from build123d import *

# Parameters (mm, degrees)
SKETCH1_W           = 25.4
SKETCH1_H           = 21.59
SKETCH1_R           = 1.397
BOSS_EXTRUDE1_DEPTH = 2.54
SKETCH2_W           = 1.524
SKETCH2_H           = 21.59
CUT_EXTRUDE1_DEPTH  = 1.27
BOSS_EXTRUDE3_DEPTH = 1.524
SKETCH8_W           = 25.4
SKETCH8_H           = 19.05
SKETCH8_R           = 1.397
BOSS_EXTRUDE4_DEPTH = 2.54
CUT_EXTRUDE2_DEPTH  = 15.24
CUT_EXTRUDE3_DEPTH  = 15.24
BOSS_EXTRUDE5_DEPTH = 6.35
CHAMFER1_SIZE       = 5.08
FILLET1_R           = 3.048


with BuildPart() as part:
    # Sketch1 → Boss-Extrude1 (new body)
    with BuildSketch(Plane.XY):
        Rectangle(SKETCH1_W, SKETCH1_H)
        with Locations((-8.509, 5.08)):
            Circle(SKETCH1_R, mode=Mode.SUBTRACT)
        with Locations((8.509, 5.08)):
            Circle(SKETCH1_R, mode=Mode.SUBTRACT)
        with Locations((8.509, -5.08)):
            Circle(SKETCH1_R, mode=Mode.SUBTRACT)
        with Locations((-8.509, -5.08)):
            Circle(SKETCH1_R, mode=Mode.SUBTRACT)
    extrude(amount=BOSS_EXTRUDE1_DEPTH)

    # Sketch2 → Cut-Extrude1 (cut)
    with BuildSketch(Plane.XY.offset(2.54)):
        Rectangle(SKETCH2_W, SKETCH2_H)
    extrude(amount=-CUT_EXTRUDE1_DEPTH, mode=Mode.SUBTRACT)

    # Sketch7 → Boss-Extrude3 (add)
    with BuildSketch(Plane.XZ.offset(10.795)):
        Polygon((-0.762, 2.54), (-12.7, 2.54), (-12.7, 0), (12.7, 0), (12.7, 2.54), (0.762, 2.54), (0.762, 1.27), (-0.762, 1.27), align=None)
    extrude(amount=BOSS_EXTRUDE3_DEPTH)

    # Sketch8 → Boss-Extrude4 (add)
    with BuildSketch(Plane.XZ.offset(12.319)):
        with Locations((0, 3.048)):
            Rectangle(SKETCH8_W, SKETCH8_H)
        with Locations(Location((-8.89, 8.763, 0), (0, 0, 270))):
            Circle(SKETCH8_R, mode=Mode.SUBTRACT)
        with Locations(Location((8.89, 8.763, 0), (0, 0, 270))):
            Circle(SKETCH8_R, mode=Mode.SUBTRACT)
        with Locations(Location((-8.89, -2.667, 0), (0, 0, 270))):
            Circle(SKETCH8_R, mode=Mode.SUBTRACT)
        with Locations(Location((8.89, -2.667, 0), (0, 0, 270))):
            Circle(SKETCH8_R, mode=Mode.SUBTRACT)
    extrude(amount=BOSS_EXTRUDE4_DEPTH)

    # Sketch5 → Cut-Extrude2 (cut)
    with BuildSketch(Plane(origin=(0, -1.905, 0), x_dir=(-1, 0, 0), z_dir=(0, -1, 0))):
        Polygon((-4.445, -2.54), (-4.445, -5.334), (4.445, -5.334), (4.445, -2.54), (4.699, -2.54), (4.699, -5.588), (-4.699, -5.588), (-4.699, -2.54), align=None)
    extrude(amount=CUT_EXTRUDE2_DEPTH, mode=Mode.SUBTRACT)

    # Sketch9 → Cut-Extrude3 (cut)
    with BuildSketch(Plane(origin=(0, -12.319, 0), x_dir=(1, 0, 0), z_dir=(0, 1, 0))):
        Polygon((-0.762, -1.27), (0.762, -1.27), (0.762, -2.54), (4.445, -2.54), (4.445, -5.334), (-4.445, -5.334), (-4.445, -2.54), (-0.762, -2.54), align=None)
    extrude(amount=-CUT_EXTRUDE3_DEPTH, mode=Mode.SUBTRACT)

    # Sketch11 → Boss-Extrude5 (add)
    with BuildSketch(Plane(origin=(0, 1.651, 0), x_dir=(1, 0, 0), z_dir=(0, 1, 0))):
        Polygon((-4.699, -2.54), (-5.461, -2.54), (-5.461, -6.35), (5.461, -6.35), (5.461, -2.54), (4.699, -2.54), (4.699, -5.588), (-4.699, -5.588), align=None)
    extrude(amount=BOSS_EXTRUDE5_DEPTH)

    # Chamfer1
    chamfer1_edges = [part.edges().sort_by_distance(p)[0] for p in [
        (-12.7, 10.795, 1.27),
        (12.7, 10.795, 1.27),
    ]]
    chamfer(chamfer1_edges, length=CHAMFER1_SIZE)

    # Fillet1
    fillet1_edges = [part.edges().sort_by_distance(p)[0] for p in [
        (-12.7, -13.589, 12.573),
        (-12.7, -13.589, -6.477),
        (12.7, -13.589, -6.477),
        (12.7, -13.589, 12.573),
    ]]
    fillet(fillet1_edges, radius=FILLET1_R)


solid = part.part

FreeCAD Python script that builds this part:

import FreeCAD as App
import Part
import Sketcher
from FreeCAD import Vector
Q = App.Units.Quantity


def edges_at(feature, points):
    """Names of the edges that pass closest to the given points."""
    edges = feature.Shape.Edges
    near = lambda p: min(range(len(edges)), key=lambda i: edges[i].distToShape(Part.Vertex(*p))[0])
    return sorted({f"Edge{near(p) + 1}" for p in points})

doc = App.newDocument("Part")
body = doc.addObject("PartDesign::Body", "Body")

# Sketch on XY plane
sketch1 = body.newObject("Sketcher::SketchObject", "Sketch")
sketch1.AttachmentSupport = (doc.getObject("XY_Plane"), [""])
sketch1.MapMode = "FlatFace"
sketch1.addGeometry([
    Part.LineSegment(Vector(-12.7, 10.8, 0), Vector(-12.7, -10.8, 0)),  # 0
    Part.LineSegment(Vector(-12.7, -10.8, 0), Vector(12.7, -10.8, 0)),  # 1
    Part.LineSegment(Vector(12.7, -10.8, 0), Vector(12.7, 10.8, 0)),  # 2
    Part.LineSegment(Vector(12.7, 10.8, 0), Vector(-12.7, 10.8, 0)),  # 3
    Part.Circle(Vector(-8.5, -5.1, 0), Vector(0, 0, 1), 1.4),  # 4
    Part.Circle(Vector(8.5, -5.1, 0), Vector(0, 0, 1), 1.4),  # 5
    Part.Circle(Vector(-8.5, 5.1, 0), Vector(0, 0, 1), 1.4),  # 6
    Part.Circle(Vector(8.5, 5.1, 0), Vector(0, 0, 1), 1.4),  # 7
], False)
sketch1.addConstraint([
    Sketcher.Constraint("Coincident", 0, 2, 1, 1),
    Sketcher.Constraint("Coincident", 1, 2, 2, 1),
    Sketcher.Constraint("Coincident", 2, 2, 3, 1),
    Sketcher.Constraint("Coincident", 3, 2, 0, 1),
    Sketcher.Constraint("Vertical", 0),
    Sketcher.Constraint("Horizontal", 1),
    Sketcher.Constraint("Vertical", 2),
    Sketcher.Constraint("Horizontal", 3),
    Sketcher.Constraint("Equal", 4, 5),
    Sketcher.Constraint("Equal", 5, 6),
    Sketcher.Constraint("Equal", 6, 7),
    Sketcher.Constraint("Symmetric", 5, 3, 6, 3, -1, 1),
    Sketcher.Constraint("Symmetric", 4, 3, 7, 3, -1, 1),
    Sketcher.Constraint("Symmetric", 0, 2, 2, 2, -1, 1),
    Sketcher.Constraint("Symmetric", 4, 3, 5, 3, -2),
    Sketcher.Constraint("Diameter", 4, Q("0.11 in")),
    Sketcher.Constraint("DistanceX", 1, 1, 1, 2, Q("1 in")),
    Sketcher.Constraint("DistanceY", 0, 2, 0, 1, Q("0.85 in")),
    Sketcher.Constraint("DistanceY", 4, 3, -1, 1, Q("0.2 in")),
    Sketcher.Constraint("DistanceX", 4, 3, 5, 3, Q("0.67 in")),
])
pad1 = body.newObject("PartDesign::Pad", "Pad")
pad1.Profile = sketch1
pad1.Length = Q("0.1 in")

# Sketch on XY plane
sketch2 = body.newObject("Sketcher::SketchObject", "Sketch001")
sketch2.AttachmentSupport = (doc.getObject("XY_Plane"), [""])
sketch2.MapMode = "FlatFace"
sketch2.AttachmentOffset = App.Placement(Vector(0, 0, 0.1 * 25.4), App.Rotation())
sketch2.addGeometry([
    Part.LineSegment(Vector(-0.8, 10.8, 0), Vector(-0.8, -10.8, 0)),
    Part.LineSegment(Vector(-0.8, -10.8, 0), Vector(0.8, -10.8, 0)),
    Part.LineSegment(Vector(0.8, -10.8, 0), Vector(0.8, 10.8, 0)),
    Part.LineSegment(Vector(0.8, 10.8, 0), Vector(-0.8, 10.8, 0)),
], False)
sketch2.addConstraint([
    Sketcher.Constraint("Coincident", 0, 2, 1, 1),
    Sketcher.Constraint("Coincident", 1, 2, 2, 1),
    Sketcher.Constraint("Coincident", 2, 2, 3, 1),
    Sketcher.Constraint("Coincident", 3, 2, 0, 1),
    Sketcher.Constraint("Vertical", 0),
    Sketcher.Constraint("Horizontal", 1),
    Sketcher.Constraint("Vertical", 2),
    Sketcher.Constraint("Horizontal", 3),
    Sketcher.Constraint("Symmetric", 0, 2, 2, 2, -1, 1),
    Sketcher.Constraint("DistanceX", 1, 1, 1, 2, Q("0.06 in")),
    Sketcher.Constraint("DistanceY", 0, 2, 0, 1, Q("0.85 in")),
])
pocket1 = body.newObject("PartDesign::Pocket", "Pocket")
pocket1.Profile = sketch2
pocket1.Length = Q("0.05 in")

# Sketch on XZ plane
sketch3 = body.newObject("Sketcher::SketchObject", "Sketch002")
sketch3.AttachmentSupport = (doc.getObject("XZ_Plane"), [""])
sketch3.MapMode = "FlatFace"
sketch3.AttachmentOffset = App.Placement(Vector(0, 0, 0.425 * 25.4), App.Rotation())
sketch3.addGeometry([
    Part.LineSegment(Vector(-0.8, 2.5, 0), Vector(-12.7, 2.5, 0)),  # 0
    Part.LineSegment(Vector(-12.7, 2.5, 0), Vector(-12.7, 0, 0)),  # 1
    Part.LineSegment(Vector(-12.7, 0, 0), Vector(12.7, 0, 0)),  # 2
    Part.LineSegment(Vector(12.7, 0, 0), Vector(12.7, 2.5, 0)),  # 3
    Part.LineSegment(Vector(12.7, 2.5, 0), Vector(0.8, 2.5, 0)),  # 4
    Part.LineSegment(Vector(0.8, 2.5, 0), Vector(0.8, 1.3, 0)),  # 5
    Part.LineSegment(Vector(0.8, 1.3, 0), Vector(-0.8, 1.3, 0)),  # 6
    Part.LineSegment(Vector(-0.8, 1.3, 0), Vector(-0.8, 2.5, 0)),  # 7
], False)
sketch3.addConstraint([
    Sketcher.Constraint("Coincident", 0, 2, 1, 1),
    Sketcher.Constraint("Coincident", 1, 2, 2, 1),
    Sketcher.Constraint("Coincident", 2, 2, 3, 1),
    Sketcher.Constraint("Coincident", 3, 2, 4, 1),
    Sketcher.Constraint("Coincident", 4, 2, 5, 1),
    Sketcher.Constraint("Coincident", 5, 2, 6, 1),
    Sketcher.Constraint("Coincident", 6, 2, 7, 1),
    Sketcher.Constraint("Coincident", 7, 2, 0, 1),
    Sketcher.Constraint("Horizontal", 0),
    Sketcher.Constraint("Vertical", 1),
    Sketcher.Constraint("Horizontal", 2),
    Sketcher.Constraint("Vertical", 3),
    Sketcher.Constraint("Horizontal", 4),
    Sketcher.Constraint("Vertical", 5),
    Sketcher.Constraint("Horizontal", 6),
    Sketcher.Constraint("Vertical", 7),
    Sketcher.Constraint("Symmetric", 1, 2, 2, 2, -1, 1),
    Sketcher.Constraint("Symmetric", 4, 2, 7, 2, -2),
    Sketcher.Constraint("DistanceX", 2, 1, 2, 2, Q("1 in")),
    Sketcher.Constraint("DistanceY", 1, 2, 1, 1, Q("0.1 in")),
    Sketcher.Constraint("DistanceX", 0, 2, 0, 1, Q("0.47 in")),
    Sketcher.Constraint("DistanceY", 5, 2, 5, 1, Q("0.05 in")),
])
pad2 = body.newObject("PartDesign::Pad", "Pad001")
pad2.Profile = sketch3
pad2.Length = Q("0.06 in")

# Sketch on XZ plane
sketch4 = body.newObject("Sketcher::SketchObject", "Sketch003")
sketch4.AttachmentSupport = (doc.getObject("XZ_Plane"), [""])
sketch4.MapMode = "FlatFace"
sketch4.AttachmentOffset = App.Placement(Vector(0, 0, 0.485 * 25.4), App.Rotation())
sketch4.addGeometry([
    Part.LineSegment(Vector(-12.7, 12.6, 0), Vector(-12.7, -6.5, 0)),  # 0
    Part.LineSegment(Vector(-12.7, -6.5, 0), Vector(12.7, -6.5, 0)),  # 1
    Part.LineSegment(Vector(12.7, -6.5, 0), Vector(12.7, 12.6, 0)),  # 2
    Part.LineSegment(Vector(12.7, 12.6, 0), Vector(-12.7, 12.6, 0)),  # 3
    Part.Circle(Vector(-8.9, -2.7, 0), Vector(0, 0, 1), 1.4),  # 4
    Part.Circle(Vector(8.9, -2.7, 0), Vector(0, 0, 1), 1.4),  # 5
    Part.Circle(Vector(-8.9, 8.8, 0), Vector(0, 0, 1), 1.4),  # 6
    Part.Circle(Vector(8.9, 8.8, 0), Vector(0, 0, 1), 1.4),  # 7
], False)
sketch4.addConstraint([
    Sketcher.Constraint("Coincident", 0, 2, 1, 1),
    Sketcher.Constraint("Coincident", 1, 2, 2, 1),
    Sketcher.Constraint("Coincident", 2, 2, 3, 1),
    Sketcher.Constraint("Coincident", 3, 2, 0, 1),
    Sketcher.Constraint("Vertical", 0),
    Sketcher.Constraint("Horizontal", 1),
    Sketcher.Constraint("Vertical", 2),
    Sketcher.Constraint("Horizontal", 3),
    Sketcher.Constraint("Equal", 4, 5),
    Sketcher.Constraint("Equal", 5, 6),
    Sketcher.Constraint("Equal", 6, 7),
    Sketcher.Constraint("Symmetric", 4, 3, 5, 3, -2),
    Sketcher.Constraint("Symmetric", 6, 3, 7, 3, -2),
    Sketcher.Constraint("Vertical", 4, 3, 6, 3),
    Sketcher.Constraint("Diameter", 4, Q("0.11 in")),
    Sketcher.Constraint("DistanceX", 1, 1, 1, 2, Q("1 in")),
    Sketcher.Constraint("DistanceY", 0, 2, 0, 1, Q("0.75 in")),
    Sketcher.Constraint("DistanceX", 0, 2, -1, 1, Q("0.5 in")),
    Sketcher.Constraint("DistanceX", 4, 3, 5, 3, Q("0.7 in")),
    Sketcher.Constraint("DistanceY", 0, 2, 6, 3, Q("0.6 in")),
    Sketcher.Constraint("DistanceY", 5, 3, 2, 2, Q("0.6 in")),
    Sketcher.Constraint("DistanceY", 4, 3, -1, 1, Q("0.105 in")),
])
pad3 = body.newObject("PartDesign::Pad", "Pad002")
pad3.Profile = sketch4
pad3.Length = Q("0.1 in")

# Sketch on XZ plane
sketch5 = body.newObject("Sketcher::SketchObject", "Sketch004")
sketch5.AttachmentSupport = (doc.getObject("XZ_Plane"), [""])
sketch5.MapMode = "FlatFace"
sketch5.AttachmentOffset = App.Placement(Vector(0, 0, 0.075 * 25.4), App.Rotation())
sketch5.addGeometry([
    Part.LineSegment(Vector(4.45, 5.33, 0), Vector(4.45, 2.54, 0)),  # 0
    Part.LineSegment(Vector(4.45, 2.54, 0), Vector(4.7, 2.54, 0)),  # 1
    Part.LineSegment(Vector(4.7, 2.54, 0), Vector(4.7, 5.59, 0)),  # 2
    Part.LineSegment(Vector(4.7, 5.59, 0), Vector(-4.7, 5.59, 0)),  # 3
    Part.LineSegment(Vector(-4.7, 5.59, 0), Vector(-4.7, 2.54, 0)),  # 4
    Part.LineSegment(Vector(-4.7, 2.54, 0), Vector(-4.45, 2.54, 0)),  # 5
    Part.LineSegment(Vector(-4.45, 2.54, 0), Vector(-4.45, 5.33, 0)),  # 6
    Part.LineSegment(Vector(-4.45, 5.33, 0), Vector(4.45, 5.33, 0)),  # 7
], False)
sketch5.addConstraint([
    Sketcher.Constraint("Coincident", 0, 2, 1, 1),
    Sketcher.Constraint("Coincident", 1, 2, 2, 1),
    Sketcher.Constraint("Coincident", 2, 2, 3, 1),
    Sketcher.Constraint("Coincident", 3, 2, 4, 1),
    Sketcher.Constraint("Coincident", 4, 2, 5, 1),
    Sketcher.Constraint("Coincident", 5, 2, 6, 1),
    Sketcher.Constraint("Coincident", 6, 2, 7, 1),
    Sketcher.Constraint("Coincident", 7, 2, 0, 1),
    Sketcher.Constraint("Vertical", 0),
    Sketcher.Constraint("Horizontal", 1),
    Sketcher.Constraint("Vertical", 2),
    Sketcher.Constraint("Horizontal", 3),
    Sketcher.Constraint("Vertical", 4),
    Sketcher.Constraint("Horizontal", 5),
    Sketcher.Constraint("Vertical", 6),
    Sketcher.Constraint("Horizontal", 7),
    Sketcher.Constraint("Symmetric", 1, 2, 4, 2, -2),
    Sketcher.Constraint("Equal", 1, 5),
    Sketcher.Constraint("DistanceX", 1, 1, 1, 2, Q("0.01 in")),
    Sketcher.Constraint("DistanceX", 3, 2, 3, 1, Q("0.37 in")),
    Sketcher.Constraint("DistanceY", 0, 2, 0, 1, Q("0.11 in")),
    Sketcher.Constraint("DistanceY", 2, 1, 2, 2, Q("0.12 in")),
    Sketcher.Constraint("DistanceY", -1, 1, 0, 2, Q("0.1 in")),
])
pocket2 = body.newObject("PartDesign::Pocket", "Pocket001")
pocket2.Profile = sketch5
pocket2.Length = Q("0.6 in")
pocket2.Reversed = True

# Sketch on XZ plane
sketch6 = body.newObject("Sketcher::SketchObject", "Sketch005")
sketch6.AttachmentSupport = (doc.getObject("XZ_Plane"), [""])
sketch6.MapMode = "FlatFace"
sketch6.AttachmentOffset = App.Placement(Vector(0, 0, 0.485 * 25.4), App.Rotation())
sketch6.addGeometry([
    Part.LineSegment(Vector(0.8, 1.3, 0), Vector(-0.8, 1.3, 0)),  # 0
    Part.LineSegment(Vector(-0.8, 1.3, 0), Vector(-0.8, 2.5, 0)),  # 1
    Part.LineSegment(Vector(-0.8, 2.5, 0), Vector(-4.4, 2.5, 0)),  # 2
    Part.LineSegment(Vector(-4.4, 2.5, 0), Vector(-4.4, 5.3, 0)),  # 3
    Part.LineSegment(Vector(-4.4, 5.3, 0), Vector(4.4, 5.3, 0)),  # 4
    Part.LineSegment(Vector(4.4, 5.3, 0), Vector(4.4, 2.5, 0)),  # 5
    Part.LineSegment(Vector(4.4, 2.5, 0), Vector(0.8, 2.5, 0)),  # 6
    Part.LineSegment(Vector(0.8, 2.5, 0), Vector(0.8, 1.3, 0)),  # 7
], False)
sketch6.addConstraint([
    Sketcher.Constraint("Coincident", 0, 2, 1, 1),
    Sketcher.Constraint("Coincident", 1, 2, 2, 1),
    Sketcher.Constraint("Coincident", 2, 2, 3, 1),
    Sketcher.Constraint("Coincident", 3, 2, 4, 1),
    Sketcher.Constraint("Coincident", 4, 2, 5, 1),
    Sketcher.Constraint("Coincident", 5, 2, 6, 1),
    Sketcher.Constraint("Coincident", 6, 2, 7, 1),
    Sketcher.Constraint("Coincident", 7, 2, 0, 1),
    Sketcher.Constraint("Horizontal", 0),
    Sketcher.Constraint("Vertical", 1),
    Sketcher.Constraint("Horizontal", 2),
    Sketcher.Constraint("Vertical", 3),
    Sketcher.Constraint("Horizontal", 4),
    Sketcher.Constraint("Vertical", 5),
    Sketcher.Constraint("Horizontal", 6),
    Sketcher.Constraint("Vertical", 7),
    Sketcher.Constraint("Symmetric", 2, 2, 5, 2, -2),
    Sketcher.Constraint("Equal", 2, 6),
    Sketcher.Constraint("DistanceX", 0, 2, 0, 1, Q("0.06 in")),
    Sketcher.Constraint("DistanceX", 4, 1, 4, 2, Q("0.35 in")),
    Sketcher.Constraint("DistanceY", 1, 1, 1, 2, Q("0.05 in")),
    Sketcher.Constraint("DistanceY", 3, 1, 3, 2, Q("0.11 in")),
    Sketcher.Constraint("DistanceY", -1, 1, 1, 2, Q("0.1 in")),
])
pocket3 = body.newObject("PartDesign::Pocket", "Pocket002")
pocket3.Profile = sketch6
pocket3.Length = Q("0.6 in")
pocket3.Reversed = True

# Sketch on XZ plane
sketch7 = body.newObject("Sketcher::SketchObject", "Sketch006")
sketch7.AttachmentSupport = (doc.getObject("XZ_Plane"), [""])
sketch7.MapMode = "FlatFace"
sketch7.AttachmentOffset = App.Placement(Vector(0, 0, -0.065 * 25.4), App.Rotation())
sketch7.addGeometry([
    Part.LineSegment(Vector(-4.7, 2.5, 0), Vector(-5.5, 2.5, 0)),  # 0
    Part.LineSegment(Vector(-5.5, 2.5, 0), Vector(-5.5, 6.3, 0)),  # 1
    Part.LineSegment(Vector(-5.5, 6.3, 0), Vector(5.5, 6.3, 0)),  # 2
    Part.LineSegment(Vector(5.5, 6.3, 0), Vector(5.5, 2.5, 0)),  # 3
    Part.LineSegment(Vector(5.5, 2.5, 0), Vector(4.7, 2.5, 0)),  # 4
    Part.LineSegment(Vector(4.7, 2.5, 0), Vector(4.7, 5.6, 0)),  # 5
    Part.LineSegment(Vector(4.7, 5.6, 0), Vector(-4.7, 5.6, 0)),  # 6
    Part.LineSegment(Vector(-4.7, 5.6, 0), Vector(-4.7, 2.5, 0)),  # 7
], False)
sketch7.addConstraint([
    Sketcher.Constraint("Coincident", 0, 2, 1, 1),
    Sketcher.Constraint("Coincident", 1, 2, 2, 1),
    Sketcher.Constraint("Coincident", 2, 2, 3, 1),
    Sketcher.Constraint("Coincident", 3, 2, 4, 1),
    Sketcher.Constraint("Coincident", 4, 2, 5, 1),
    Sketcher.Constraint("Coincident", 5, 2, 6, 1),
    Sketcher.Constraint("Coincident", 6, 2, 7, 1),
    Sketcher.Constraint("Coincident", 7, 2, 0, 1),
    Sketcher.Constraint("Horizontal", 0),
    Sketcher.Constraint("Vertical", 1),
    Sketcher.Constraint("Horizontal", 2),
    Sketcher.Constraint("Vertical", 3),
    Sketcher.Constraint("Horizontal", 4),
    Sketcher.Constraint("Vertical", 5),
    Sketcher.Constraint("Horizontal", 6),
    Sketcher.Constraint("Vertical", 7),
    Sketcher.Constraint("Symmetric", 0, 2, 3, 2, -2),
    Sketcher.Constraint("Equal", 0, 4),
    Sketcher.Constraint("DistanceX", 0, 2, 0, 1, Q("0.03 in")),
    Sketcher.Constraint("DistanceX", 2, 1, 2, 2, Q("0.43 in")),
    Sketcher.Constraint("DistanceY", 1, 1, 1, 2, Q("0.15 in")),
    Sketcher.Constraint("DistanceY", 5, 1, 5, 2, Q("0.12 in")),
    Sketcher.Constraint("DistanceY", -1, 1, 0, 2, Q("0.1 in")),
])
pad4 = body.newObject("PartDesign::Pad", "Pad003")
pad4.Profile = sketch7
pad4.Length = Q("0.25 in")
pad4.Reversed = True
doc.recompute()

chamfer = body.newObject("PartDesign::Chamfer", "Chamfer")
chamfer.Base = (pad4, edges_at(pad4, [(-12.7, 10.795, 1.27), (12.7, 10.795, 1.27)]))
chamfer.Size = Q("0.2 in")
doc.recompute()

fillet = body.newObject("PartDesign::Fillet", "Fillet")
fillet.Base = (chamfer, edges_at(chamfer, [
    (-12.7, -13.589, 12.573),
    (-12.7, -13.589, -6.477),
    (12.7, -13.589, -6.477),
    (12.7, -13.589, 12.573),
]))
fillet.Radius = Q("0.12 in")

doc.recompute()
